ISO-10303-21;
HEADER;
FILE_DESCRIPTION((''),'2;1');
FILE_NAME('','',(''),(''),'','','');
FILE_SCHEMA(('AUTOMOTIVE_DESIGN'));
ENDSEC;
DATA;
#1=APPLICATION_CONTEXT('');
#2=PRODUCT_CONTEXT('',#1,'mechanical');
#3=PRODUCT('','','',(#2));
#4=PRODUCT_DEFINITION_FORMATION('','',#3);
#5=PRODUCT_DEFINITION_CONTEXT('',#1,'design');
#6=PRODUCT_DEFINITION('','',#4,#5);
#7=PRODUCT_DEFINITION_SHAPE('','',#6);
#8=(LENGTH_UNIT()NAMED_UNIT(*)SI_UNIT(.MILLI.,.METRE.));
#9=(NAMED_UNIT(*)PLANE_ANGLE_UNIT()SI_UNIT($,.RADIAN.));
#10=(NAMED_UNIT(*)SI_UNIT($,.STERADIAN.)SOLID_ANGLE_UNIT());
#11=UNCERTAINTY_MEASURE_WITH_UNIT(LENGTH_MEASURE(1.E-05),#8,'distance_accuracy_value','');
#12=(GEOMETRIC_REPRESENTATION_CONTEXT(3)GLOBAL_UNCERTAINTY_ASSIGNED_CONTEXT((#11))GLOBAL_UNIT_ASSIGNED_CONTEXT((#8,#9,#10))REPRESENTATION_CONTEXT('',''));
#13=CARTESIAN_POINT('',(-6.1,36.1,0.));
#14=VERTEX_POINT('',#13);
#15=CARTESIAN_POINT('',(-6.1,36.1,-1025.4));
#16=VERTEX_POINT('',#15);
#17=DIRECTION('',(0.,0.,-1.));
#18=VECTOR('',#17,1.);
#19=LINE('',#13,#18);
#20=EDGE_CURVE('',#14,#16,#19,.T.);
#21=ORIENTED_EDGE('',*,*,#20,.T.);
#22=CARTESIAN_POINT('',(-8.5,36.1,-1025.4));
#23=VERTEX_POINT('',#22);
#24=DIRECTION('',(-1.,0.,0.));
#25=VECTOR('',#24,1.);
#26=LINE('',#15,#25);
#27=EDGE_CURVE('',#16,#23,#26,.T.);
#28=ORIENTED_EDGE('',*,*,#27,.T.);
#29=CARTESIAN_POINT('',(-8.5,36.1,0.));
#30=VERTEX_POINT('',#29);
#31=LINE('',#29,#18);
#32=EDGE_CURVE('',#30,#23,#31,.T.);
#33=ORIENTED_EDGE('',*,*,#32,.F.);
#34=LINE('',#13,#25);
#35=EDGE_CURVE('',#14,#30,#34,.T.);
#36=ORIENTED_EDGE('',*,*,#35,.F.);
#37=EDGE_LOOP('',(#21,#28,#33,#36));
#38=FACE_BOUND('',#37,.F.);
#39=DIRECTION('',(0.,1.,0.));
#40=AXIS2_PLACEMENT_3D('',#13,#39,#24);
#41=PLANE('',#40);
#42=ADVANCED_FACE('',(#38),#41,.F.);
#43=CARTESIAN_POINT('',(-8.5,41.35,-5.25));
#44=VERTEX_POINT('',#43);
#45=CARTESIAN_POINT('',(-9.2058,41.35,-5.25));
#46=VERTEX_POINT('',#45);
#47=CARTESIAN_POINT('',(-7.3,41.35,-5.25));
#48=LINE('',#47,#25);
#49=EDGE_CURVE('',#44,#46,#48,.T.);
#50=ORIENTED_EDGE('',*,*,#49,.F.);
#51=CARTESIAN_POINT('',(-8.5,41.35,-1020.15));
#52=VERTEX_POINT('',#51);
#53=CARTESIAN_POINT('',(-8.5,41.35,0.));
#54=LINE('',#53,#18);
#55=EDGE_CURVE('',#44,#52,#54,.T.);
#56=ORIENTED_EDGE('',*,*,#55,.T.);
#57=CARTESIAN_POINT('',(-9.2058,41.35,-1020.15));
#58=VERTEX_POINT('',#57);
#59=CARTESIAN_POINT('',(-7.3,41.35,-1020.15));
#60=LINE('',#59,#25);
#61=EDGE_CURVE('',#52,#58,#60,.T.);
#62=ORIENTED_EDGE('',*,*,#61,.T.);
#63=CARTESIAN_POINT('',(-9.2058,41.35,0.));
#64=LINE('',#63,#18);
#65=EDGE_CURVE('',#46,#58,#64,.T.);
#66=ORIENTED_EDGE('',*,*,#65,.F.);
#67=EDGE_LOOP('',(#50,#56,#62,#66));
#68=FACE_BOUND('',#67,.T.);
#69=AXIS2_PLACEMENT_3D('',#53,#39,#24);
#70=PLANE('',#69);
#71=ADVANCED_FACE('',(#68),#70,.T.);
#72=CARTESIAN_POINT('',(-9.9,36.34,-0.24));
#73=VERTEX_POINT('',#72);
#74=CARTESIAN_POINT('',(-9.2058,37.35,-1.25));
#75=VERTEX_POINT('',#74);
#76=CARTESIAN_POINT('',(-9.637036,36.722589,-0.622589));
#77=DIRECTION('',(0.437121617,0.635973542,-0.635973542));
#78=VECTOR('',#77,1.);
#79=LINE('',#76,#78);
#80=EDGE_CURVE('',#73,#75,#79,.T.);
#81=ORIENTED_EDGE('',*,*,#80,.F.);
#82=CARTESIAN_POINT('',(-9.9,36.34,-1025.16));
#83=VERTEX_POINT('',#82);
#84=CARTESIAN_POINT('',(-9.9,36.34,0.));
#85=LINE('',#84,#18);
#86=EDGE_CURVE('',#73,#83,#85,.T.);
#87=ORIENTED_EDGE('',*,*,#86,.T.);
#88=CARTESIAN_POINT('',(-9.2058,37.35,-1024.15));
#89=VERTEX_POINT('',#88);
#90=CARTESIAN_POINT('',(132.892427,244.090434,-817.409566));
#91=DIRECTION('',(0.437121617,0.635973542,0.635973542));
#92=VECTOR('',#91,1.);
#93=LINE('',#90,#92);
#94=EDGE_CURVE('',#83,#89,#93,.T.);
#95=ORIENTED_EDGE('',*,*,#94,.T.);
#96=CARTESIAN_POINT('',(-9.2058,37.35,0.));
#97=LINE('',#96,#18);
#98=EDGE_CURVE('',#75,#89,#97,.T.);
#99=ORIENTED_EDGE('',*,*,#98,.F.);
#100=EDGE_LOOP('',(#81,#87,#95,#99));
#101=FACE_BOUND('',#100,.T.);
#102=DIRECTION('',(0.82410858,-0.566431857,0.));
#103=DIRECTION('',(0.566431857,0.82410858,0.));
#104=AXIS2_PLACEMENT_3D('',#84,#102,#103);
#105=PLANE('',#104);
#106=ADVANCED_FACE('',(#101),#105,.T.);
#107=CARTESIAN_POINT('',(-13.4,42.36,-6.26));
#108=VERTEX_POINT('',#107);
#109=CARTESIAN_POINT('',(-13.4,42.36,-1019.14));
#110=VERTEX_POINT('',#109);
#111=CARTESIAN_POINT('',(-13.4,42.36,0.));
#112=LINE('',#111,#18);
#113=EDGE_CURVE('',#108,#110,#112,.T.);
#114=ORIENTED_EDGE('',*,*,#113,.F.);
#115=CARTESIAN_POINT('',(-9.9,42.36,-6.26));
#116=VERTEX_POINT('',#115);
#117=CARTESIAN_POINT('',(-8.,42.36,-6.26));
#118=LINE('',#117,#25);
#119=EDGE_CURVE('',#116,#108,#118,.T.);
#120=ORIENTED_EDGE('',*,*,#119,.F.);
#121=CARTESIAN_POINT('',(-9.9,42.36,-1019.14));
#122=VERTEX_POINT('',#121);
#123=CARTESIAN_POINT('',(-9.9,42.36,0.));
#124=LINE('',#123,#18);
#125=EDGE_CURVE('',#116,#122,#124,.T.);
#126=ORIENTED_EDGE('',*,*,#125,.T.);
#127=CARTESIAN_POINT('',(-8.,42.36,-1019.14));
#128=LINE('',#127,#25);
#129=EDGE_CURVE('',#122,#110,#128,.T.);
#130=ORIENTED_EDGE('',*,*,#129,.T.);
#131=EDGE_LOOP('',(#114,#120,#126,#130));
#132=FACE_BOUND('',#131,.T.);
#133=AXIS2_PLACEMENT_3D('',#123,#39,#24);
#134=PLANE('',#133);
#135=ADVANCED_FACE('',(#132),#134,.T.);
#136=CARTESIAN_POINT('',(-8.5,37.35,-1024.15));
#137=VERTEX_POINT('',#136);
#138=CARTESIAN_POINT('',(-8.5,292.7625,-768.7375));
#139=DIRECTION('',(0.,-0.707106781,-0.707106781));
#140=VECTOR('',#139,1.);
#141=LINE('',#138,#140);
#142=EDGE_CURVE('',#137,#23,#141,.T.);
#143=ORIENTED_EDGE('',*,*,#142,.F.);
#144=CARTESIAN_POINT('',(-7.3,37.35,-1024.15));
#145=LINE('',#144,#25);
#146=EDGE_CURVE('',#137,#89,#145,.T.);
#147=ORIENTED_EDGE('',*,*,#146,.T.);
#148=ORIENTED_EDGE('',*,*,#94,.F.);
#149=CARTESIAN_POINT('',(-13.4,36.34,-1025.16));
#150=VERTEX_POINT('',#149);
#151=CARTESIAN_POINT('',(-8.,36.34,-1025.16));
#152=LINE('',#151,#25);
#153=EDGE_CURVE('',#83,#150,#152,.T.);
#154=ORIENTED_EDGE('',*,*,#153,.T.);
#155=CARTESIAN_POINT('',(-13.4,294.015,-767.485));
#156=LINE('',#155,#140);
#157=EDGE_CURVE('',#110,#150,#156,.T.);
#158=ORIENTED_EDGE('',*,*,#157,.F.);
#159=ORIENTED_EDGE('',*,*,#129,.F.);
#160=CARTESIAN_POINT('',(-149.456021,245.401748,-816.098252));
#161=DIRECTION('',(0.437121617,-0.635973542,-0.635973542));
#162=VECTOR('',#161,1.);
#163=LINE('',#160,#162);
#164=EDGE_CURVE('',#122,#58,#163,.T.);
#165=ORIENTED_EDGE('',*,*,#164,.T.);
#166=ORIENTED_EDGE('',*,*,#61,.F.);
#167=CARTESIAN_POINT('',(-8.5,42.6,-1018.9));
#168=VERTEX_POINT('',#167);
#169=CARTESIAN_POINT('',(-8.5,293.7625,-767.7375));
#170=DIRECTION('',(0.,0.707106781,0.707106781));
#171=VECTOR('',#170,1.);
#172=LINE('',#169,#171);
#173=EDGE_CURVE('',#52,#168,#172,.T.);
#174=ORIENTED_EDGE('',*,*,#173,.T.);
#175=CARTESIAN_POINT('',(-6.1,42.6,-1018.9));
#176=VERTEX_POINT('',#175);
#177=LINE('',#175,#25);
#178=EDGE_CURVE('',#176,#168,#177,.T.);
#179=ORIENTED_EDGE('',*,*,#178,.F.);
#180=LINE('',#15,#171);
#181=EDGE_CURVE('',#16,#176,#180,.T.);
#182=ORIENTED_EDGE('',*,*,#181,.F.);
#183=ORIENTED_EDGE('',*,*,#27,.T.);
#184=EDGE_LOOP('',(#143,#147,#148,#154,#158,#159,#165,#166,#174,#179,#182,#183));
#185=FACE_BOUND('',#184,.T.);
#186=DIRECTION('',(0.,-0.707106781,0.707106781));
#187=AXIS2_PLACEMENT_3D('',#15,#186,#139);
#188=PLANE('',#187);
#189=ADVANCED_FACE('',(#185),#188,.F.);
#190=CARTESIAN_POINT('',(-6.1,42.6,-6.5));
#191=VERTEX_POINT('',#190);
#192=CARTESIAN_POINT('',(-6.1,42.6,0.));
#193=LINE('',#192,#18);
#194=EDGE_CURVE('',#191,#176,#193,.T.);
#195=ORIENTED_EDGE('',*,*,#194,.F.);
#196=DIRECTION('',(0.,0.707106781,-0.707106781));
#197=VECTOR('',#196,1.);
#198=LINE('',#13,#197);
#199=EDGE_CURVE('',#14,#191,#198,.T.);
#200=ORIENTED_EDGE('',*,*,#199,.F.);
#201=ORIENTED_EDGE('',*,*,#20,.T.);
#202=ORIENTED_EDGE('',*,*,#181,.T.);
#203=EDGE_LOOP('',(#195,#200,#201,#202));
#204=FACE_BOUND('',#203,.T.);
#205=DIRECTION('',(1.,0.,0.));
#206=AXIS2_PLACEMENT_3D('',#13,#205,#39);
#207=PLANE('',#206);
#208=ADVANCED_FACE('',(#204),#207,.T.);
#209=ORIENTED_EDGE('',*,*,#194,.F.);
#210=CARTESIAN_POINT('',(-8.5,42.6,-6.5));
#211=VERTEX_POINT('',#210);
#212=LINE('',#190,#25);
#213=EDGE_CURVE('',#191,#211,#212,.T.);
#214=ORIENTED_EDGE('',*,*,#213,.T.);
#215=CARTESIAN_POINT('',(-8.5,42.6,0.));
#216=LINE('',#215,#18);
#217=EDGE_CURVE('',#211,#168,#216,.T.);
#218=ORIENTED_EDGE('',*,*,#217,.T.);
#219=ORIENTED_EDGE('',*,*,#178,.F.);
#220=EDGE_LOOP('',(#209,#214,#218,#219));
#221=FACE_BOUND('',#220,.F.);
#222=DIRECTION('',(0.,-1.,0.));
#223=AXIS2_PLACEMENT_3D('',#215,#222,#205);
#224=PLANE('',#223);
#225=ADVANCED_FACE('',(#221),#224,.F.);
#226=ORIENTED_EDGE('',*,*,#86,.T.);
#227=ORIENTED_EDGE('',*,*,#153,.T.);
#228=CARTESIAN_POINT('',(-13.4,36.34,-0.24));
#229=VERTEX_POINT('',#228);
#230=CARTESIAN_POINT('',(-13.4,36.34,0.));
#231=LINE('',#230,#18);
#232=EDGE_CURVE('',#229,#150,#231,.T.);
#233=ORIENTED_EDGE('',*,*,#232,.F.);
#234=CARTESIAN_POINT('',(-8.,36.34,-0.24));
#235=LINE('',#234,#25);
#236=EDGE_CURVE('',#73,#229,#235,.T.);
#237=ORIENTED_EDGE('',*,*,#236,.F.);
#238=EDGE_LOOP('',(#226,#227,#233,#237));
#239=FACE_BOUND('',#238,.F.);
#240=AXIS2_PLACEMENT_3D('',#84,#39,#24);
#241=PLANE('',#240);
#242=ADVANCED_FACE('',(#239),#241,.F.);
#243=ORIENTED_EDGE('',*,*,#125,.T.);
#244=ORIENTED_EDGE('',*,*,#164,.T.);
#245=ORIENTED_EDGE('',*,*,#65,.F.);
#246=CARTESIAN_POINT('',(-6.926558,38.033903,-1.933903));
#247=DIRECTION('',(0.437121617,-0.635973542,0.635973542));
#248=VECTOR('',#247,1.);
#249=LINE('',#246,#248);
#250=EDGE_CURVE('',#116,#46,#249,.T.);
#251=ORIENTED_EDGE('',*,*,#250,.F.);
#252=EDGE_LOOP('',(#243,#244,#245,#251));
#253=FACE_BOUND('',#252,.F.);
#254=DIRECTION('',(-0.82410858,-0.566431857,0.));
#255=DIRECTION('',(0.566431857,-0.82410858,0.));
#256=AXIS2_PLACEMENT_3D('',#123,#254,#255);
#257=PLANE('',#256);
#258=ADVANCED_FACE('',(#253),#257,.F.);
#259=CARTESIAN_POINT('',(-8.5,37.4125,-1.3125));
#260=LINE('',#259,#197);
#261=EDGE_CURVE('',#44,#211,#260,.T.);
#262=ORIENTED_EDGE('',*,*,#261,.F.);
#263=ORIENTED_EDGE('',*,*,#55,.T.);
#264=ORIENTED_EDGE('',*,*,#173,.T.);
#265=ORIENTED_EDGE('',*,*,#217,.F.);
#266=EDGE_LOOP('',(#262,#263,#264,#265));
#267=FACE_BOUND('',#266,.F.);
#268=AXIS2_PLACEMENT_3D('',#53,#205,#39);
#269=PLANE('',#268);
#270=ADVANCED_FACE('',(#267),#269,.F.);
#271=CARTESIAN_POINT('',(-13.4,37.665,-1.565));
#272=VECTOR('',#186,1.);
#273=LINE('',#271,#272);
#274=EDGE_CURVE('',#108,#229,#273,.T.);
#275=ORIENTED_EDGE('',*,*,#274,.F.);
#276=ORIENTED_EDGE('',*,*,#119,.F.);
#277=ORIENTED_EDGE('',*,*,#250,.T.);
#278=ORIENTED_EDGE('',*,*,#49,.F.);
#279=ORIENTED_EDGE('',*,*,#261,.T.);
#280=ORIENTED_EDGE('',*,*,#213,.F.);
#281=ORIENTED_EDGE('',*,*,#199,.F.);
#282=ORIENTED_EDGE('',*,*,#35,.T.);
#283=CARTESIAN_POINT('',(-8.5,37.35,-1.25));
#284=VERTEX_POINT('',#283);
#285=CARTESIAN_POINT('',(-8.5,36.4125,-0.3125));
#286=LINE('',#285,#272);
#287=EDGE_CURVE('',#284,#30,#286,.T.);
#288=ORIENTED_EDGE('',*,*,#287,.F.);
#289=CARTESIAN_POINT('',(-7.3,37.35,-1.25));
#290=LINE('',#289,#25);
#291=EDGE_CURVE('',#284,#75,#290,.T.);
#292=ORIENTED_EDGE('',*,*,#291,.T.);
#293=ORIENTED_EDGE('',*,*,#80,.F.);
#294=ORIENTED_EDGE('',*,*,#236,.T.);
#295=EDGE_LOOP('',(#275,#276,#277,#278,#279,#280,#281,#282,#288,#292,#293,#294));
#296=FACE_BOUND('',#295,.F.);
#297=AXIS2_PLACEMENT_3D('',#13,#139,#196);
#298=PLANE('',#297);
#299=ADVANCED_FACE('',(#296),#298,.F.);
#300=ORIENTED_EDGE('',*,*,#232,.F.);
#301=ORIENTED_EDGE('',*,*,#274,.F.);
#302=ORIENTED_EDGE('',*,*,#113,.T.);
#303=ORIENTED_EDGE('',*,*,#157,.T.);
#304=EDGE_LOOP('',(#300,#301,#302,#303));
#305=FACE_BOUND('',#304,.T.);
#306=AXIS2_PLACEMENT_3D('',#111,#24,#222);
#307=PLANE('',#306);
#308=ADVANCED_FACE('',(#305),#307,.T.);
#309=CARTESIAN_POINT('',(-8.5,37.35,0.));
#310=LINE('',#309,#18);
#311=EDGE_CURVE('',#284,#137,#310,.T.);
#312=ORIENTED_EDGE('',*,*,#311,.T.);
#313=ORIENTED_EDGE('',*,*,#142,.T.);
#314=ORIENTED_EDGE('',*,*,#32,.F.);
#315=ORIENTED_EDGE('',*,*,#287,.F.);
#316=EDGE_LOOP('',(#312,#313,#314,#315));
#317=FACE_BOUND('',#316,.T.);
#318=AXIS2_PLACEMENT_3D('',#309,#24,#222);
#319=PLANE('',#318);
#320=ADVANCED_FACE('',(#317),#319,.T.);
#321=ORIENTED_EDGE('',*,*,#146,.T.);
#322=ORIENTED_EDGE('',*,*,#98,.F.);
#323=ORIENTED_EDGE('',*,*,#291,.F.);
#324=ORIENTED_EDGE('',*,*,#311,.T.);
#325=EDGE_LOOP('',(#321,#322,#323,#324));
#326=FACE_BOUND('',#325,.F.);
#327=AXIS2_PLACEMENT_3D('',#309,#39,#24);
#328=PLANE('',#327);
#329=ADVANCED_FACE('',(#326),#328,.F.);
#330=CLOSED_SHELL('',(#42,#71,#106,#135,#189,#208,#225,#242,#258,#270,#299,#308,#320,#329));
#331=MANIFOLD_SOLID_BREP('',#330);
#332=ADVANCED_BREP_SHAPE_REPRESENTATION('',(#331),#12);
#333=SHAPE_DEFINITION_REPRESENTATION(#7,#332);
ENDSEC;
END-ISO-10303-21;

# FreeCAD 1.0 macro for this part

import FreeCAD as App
import Part
import Sketcher

V = App.Vector
Q = App.Units.Quantity

doc = App.newDocument("Part")
body = doc.addObject("PartDesign::Body", "Body")

# Sketch on XY plane
sketch1 = body.newObject("Sketcher::SketchObject", "Sketch")
sketch1.AttachmentSupport = (doc.getObject("XY_Plane"), [""])
sketch1.MapMode = "FlatFace"
sketch1.addGeometry(Part.LineSegment(V(-6.1, 42.6, 0), V(-8.5, 42.6, 0)), False)
sketch1.addGeometry(Part.LineSegment(V(-8.5, 42.6, 0), V(-8.5, 41.4, 0)), False)
sketch1.addGeometry(Part.LineSegment(V(-8.5, 41.4, 0), V(-9.2, 41.4, 0)), False)
sketch1.addGeometry(Part.LineSegment(V(-9.2, 41.4, 0), V(-9.9, 42.4, 0)), False)
sketch1.addGeometry(Part.LineSegment(V(-9.9, 42.4, 0), V(-13.4, 42.4, 0)), False)
sketch1.addGeometry(Part.LineSegment(V(-13.4, 42.4, 0), V(-13.4, 36.3, 0)), False)
sketch1.addGeometry(Part.LineSegment(V(-13.4, 36.3, 0), V(-9.9, 36.3, 0)), False)
sketch1.addGeometry(Part.LineSegment(V(-9.9, 36.3, 0), V(-9.2, 37.4, 0)), False)
sketch1.addGeometry(Part.LineSegment(V(-9.2, 37.4, 0), V(-8.5, 37.4, 0)), False)
sketch1.addGeometry(Part.LineSegment(V(-8.5, 37.4, 0), V(-8.5, 36.1, 0)), False)
sketch1.addGeometry(Part.LineSegment(V(-8.5, 36.1, 0), V(-6.1, 36.1, 0)), False)
sketch1.addGeometry(Part.LineSegment(V(-6.1, 36.1, 0), V(-6.1, 42.6, 0)), False)
sketch1.addConstraint(Sketcher.Constraint("Coincident", 0, 2, 1, 1))
sketch1.addConstraint(Sketcher.Constraint("Coincident", 1, 2, 2, 1))
sketch1.addConstraint(Sketcher.Constraint("Coincident", 2, 2, 3, 1))
sketch1.addConstraint(Sketcher.Constraint("Coincident", 3, 2, 4, 1))
sketch1.addConstraint(Sketcher.Constraint("Coincident", 4, 2, 5, 1))
sketch1.addConstraint(Sketcher.Constraint("Coincident", 5, 2, 6, 1))
sketch1.addConstraint(Sketcher.Constraint("Coincident", 6, 2, 7, 1))
sketch1.addConstraint(Sketcher.Constraint("Coincident", 7, 2, 8, 1))
sketch1.addConstraint(Sketcher.Constraint("Coincident", 8, 2, 9, 1))
sketch1.addConstraint(Sketcher.Constraint("Coincident", 9, 2, 10, 1))
sketch1.addConstraint(Sketcher.Constraint("Coincident", 10, 2, 11, 1))
sketch1.addConstraint(Sketcher.Constraint("Coincident", 11, 2, 0, 1))
sketch1.addConstraint(Sketcher.Constraint("Horizontal", 0))
sketch1.addConstraint(Sketcher.Constraint("Vertical", 1))
sketch1.addConstraint(Sketcher.Constraint("Horizontal", 2))
sketch1.addConstraint(Sketcher.Constraint("Horizontal", 4))
sketch1.addConstraint(Sketcher.Constraint("Vertical", 5))
sketch1.addConstraint(Sketcher.Constraint("Horizontal", 6))
sketch1.addConstraint(Sketcher.Constraint("Horizontal", 8))
sketch1.addConstraint(Sketcher.Constraint("Vertical", 9))
sketch1.addConstraint(Sketcher.Constraint("Horizontal", 10))
sketch1.addConstraint(Sketcher.Constraint("Vertical", 11))
sketch1.addConstraint(Sketcher.Constraint("Vertical", 3, 2, 6, 2))
sketch1.addConstraint(Sketcher.Constraint("Vertical", 2, 2, 7, 2))
sketch1.addConstraint(Sketcher.Constraint("Vertical", 1, 2, 8, 2))
sketch1.addConstraint(Sketcher.Constraint("Equal", 1, 9))
sketch1.addConstraint(Sketcher.Constraint("Equal", 3, 7))
sketch1.addConstraint(Sketcher.Constraint("DistanceX", 0, 2, 0, 1, Q("2.4 mm")))
sketch1.addConstraint(Sketcher.Constraint("DistanceX", 4, 2, 4, 1, Q("3.5 mm")))
sketch1.addConstraint(Sketcher.Constraint("DistanceY", 11, 1, 11, 2, Q("6.5 mm")))
sketch1.addConstraint(Sketcher.Constraint("DistanceY", 7, 2, 2, 2, Q("4 mm")))
sketch1.addConstraint(Sketcher.Constraint("DistanceY", 5, 2, 5, 1, Q("6.02 mm")))
sketch1.addConstraint(Sketcher.Constraint("DistanceX", 2, 2, 2, 1, Q("0.7058 mm")))
sketch1.addConstraint(Sketcher.Constraint("DistanceX", 0, 2, -1, 1, Q("8.5 mm")))
sketch1.addConstraint(Sketcher.Constraint("DistanceY", -1, 1, 0, 2, Q("42.6 mm")))
sketch1.addConstraint(Sketcher.Constraint("DistanceX", 3, 2, -1, 1, Q("9.9 mm")))
pad1 = body.newObject("PartDesign::Pad", "Pad")
pad1.Profile = sketch1
pad1.Length = 1025.4
pad1.Reversed = True

# Sketch on YZ plane
sketch2 = body.newObject("Sketcher::SketchObject", "Sketch001")
sketch2.AttachmentSupport = (doc.getObject("YZ_Plane"), [""])
sketch2.MapMode = "FlatFace"
sketch2.AttachmentOffset = App.Placement(V(0, 0, -6.1), App.Rotation())
sketch2.addGeometry(Part.LineSegment(V(43, 0, 0), V(36, 0, 0)), False)
sketch2.addGeometry(Part.LineSegment(V(36, 0, 0), V(43, -6, 0)), False)
sketch2.addGeometry(Part.LineSegment(V(43, -6, 0), V(43, 0, 0)), False)
sketch2.addConstraint(Sketcher.Constraint("Coincident", 0, 2, 1, 1))
sketch2.addConstraint(Sketcher.Constraint("Coincident", 1, 2, 2, 1))
sketch2.addConstraint(Sketcher.Constraint("Coincident", 2, 2, 0, 1))
sketch2.addConstraint(Sketcher.Constraint("Horizontal", 0))
sketch2.addConstraint(Sketcher.Constraint("Vertical", 2))
sketch2.addConstraint(Sketcher.Constraint("PointOnObject", 0, 2, -1))
sketch2.addConstraint(Sketcher.Constraint("Equal", 0, 2))
sketch2.addConstraint(Sketcher.Constraint("DistanceX", 0, 2, 0, 1, Q("6.5 mm")))
sketch2.addConstraint(Sketcher.Constraint("DistanceX", -1, 1, 0, 2, Q("36.1 mm")))
pocket1 = body.newObject("PartDesign::Pocket", "Pocket")
pocket1.Profile = sketch2
pocket1.Type = "ThroughAll"
doc.recompute()

datumplane = body.newObject("PartDesign::Plane", "DatumPlane")
datumplane.AttachmentSupport = (doc.getObject("XY_Plane"), [""])
datumplane.MapMode = "FlatFace"
datumplane.AttachmentOffset = App.Placement(V(0, 0, -512.7), App.Rotation())
mirrored = body.newObject("PartDesign::Mirrored", "Mirrored")
mirrored.Originals = [pocket1]
mirrored.MirrorPlane = (datumplane, [""])
body.Tip = mirrored

doc.recompute()
